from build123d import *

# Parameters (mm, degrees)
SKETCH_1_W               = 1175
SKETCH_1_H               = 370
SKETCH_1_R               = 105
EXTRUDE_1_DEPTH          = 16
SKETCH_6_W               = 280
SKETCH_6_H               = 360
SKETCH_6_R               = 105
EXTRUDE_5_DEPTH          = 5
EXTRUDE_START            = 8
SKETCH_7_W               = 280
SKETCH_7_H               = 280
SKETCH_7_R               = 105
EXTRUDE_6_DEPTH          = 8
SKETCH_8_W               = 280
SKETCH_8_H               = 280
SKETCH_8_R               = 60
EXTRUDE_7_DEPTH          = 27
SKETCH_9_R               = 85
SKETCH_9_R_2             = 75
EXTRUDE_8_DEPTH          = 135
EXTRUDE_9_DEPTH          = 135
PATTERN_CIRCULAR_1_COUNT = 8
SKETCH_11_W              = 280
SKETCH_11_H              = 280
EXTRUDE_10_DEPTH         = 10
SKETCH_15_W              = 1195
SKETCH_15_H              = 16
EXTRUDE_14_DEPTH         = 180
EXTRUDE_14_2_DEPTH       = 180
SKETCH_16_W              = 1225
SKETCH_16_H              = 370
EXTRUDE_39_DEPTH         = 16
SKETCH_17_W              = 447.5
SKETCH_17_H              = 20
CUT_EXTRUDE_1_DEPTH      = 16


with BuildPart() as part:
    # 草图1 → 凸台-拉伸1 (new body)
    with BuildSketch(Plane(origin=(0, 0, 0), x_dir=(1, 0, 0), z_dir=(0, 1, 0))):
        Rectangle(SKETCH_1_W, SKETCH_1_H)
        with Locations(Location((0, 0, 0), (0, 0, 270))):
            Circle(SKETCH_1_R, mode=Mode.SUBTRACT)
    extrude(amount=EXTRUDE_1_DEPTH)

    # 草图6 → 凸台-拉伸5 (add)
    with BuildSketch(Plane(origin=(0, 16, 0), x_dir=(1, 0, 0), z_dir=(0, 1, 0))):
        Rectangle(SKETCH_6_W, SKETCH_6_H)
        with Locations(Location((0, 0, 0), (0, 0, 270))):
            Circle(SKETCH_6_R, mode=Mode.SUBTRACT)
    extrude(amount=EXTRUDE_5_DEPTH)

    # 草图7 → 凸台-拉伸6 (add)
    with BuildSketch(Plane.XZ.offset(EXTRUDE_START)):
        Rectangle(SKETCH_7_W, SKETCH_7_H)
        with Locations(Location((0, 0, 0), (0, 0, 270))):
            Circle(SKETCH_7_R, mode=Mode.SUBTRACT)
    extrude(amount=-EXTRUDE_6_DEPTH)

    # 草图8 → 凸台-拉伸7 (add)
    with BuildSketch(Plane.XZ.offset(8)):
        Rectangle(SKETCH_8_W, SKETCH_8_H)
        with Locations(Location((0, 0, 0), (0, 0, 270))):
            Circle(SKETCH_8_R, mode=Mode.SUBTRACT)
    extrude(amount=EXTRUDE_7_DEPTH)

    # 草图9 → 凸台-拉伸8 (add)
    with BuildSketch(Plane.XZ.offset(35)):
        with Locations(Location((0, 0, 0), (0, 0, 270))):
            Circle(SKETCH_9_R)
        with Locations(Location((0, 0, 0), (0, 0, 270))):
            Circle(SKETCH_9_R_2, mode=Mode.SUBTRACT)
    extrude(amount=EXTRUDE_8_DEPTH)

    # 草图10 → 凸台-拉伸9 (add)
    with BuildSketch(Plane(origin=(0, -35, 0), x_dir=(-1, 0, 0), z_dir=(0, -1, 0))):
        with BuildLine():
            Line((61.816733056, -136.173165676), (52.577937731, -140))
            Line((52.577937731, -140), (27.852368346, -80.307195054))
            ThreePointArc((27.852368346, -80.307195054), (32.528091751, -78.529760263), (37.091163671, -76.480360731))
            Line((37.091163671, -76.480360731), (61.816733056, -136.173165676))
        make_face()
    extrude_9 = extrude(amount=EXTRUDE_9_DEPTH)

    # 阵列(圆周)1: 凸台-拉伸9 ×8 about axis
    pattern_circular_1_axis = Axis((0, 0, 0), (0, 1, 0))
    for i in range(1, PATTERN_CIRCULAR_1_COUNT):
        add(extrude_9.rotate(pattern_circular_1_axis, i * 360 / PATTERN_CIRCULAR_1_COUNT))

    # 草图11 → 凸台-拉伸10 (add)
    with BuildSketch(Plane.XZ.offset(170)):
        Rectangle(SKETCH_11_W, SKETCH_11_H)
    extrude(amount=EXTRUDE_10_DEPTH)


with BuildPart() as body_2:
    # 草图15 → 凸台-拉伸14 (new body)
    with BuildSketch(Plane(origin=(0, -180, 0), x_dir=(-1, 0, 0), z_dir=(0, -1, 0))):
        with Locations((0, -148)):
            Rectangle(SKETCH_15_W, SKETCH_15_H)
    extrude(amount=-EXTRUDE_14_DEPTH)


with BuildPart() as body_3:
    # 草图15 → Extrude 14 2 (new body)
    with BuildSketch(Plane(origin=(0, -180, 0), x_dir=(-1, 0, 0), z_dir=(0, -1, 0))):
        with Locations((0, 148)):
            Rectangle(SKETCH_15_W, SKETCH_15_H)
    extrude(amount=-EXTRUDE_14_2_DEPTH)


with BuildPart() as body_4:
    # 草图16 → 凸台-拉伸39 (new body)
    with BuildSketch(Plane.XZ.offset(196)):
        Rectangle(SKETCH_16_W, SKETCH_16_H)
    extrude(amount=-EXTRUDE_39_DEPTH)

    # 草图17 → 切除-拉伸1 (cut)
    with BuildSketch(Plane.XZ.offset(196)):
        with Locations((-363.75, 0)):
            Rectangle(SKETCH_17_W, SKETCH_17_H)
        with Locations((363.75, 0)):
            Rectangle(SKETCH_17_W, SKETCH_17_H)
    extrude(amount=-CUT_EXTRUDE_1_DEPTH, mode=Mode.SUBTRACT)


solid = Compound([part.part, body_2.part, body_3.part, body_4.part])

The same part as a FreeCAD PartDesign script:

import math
import FreeCAD as App
import Part
import Sketcher
from FreeCAD import Vector
Q = App.Units.Quantity

doc = App.newDocument("Part")
body = doc.addObject("PartDesign::Body", "Body")

# Sketch on XZ plane
sketch1 = body.newObject("Sketcher::SketchObject", "Sketch")
sketch1.AttachmentSupport = (doc.getObject("XZ_Plane"), [""])
sketch1.MapMode = "FlatFace"
sketch1.addGeometry([
    Part.LineSegment(Vector(-588, -185, 0), Vector(-588, 185, 0)),  # 0
    Part.LineSegment(Vector(-588, 185, 0), Vector(588, 185, 0)),  # 1
    Part.LineSegment(Vector(588, 185, 0), Vector(588, -185, 0)),  # 2
    Part.LineSegment(Vector(588, -185, 0), Vector(-588, -185, 0)),  # 3
    Part.Circle(Vector(0, 0, 0), Vector(0, 0, 1), 105),  # 4
], False)
sketch1.addConstraint([
    Sketcher.Constraint("Coincident", 0, 2, 1, 1),
    Sketcher.Constraint("Coincident", 1, 2, 2, 1),
    Sketcher.Constraint("Coincident", 2, 2, 3, 1),
    Sketcher.Constraint("Coincident", 3, 2, 0, 1),
    Sketcher.Constraint("Vertical", 0),
    Sketcher.Constraint("Horizontal", 1),
    Sketcher.Constraint("Vertical", 2),
    Sketcher.Constraint("Horizontal", 3),
    Sketcher.Constraint("Coincident", 4, 3, -1, 1),
    Sketcher.Constraint("Symmetric", 0, 2, 2, 2, -1, 1),
    Sketcher.Constraint("Diameter", 4, 210.0),
    Sketcher.Constraint("DistanceX", 1, 1, 1, 2, 1175.0),
    Sketcher.Constraint("DistanceY", 0, 1, 0, 2, 370.0),
])
pad1 = body.newObject("PartDesign::Pad", "Pad")
pad1.Profile = sketch1
pad1.Length = 16
pad1.Reversed = True

# Sketch on XZ plane
sketch2 = body.newObject("Sketcher::SketchObject", "Sketch001")
sketch2.AttachmentSupport = (doc.getObject("XZ_Plane"), [""])
sketch2.MapMode = "FlatFace"
sketch2.AttachmentOffset = App.Placement(Vector(0, 0, -16), App.Rotation())
sketch2.addGeometry([
    Part.LineSegment(Vector(-140, -180, 0), Vector(-140, 180, 0)),  # 0
    Part.LineSegment(Vector(-140, 180, 0), Vector(140, 180, 0)),  # 1
    Part.LineSegment(Vector(140, 180, 0), Vector(140, -180, 0)),  # 2
    Part.LineSegment(Vector(140, -180, 0), Vector(-140, -180, 0)),  # 3
    Part.Circle(Vector(0, 0, 0), Vector(0, 0, 1), 105),  # 4
], False)
sketch2.addConstraint([
    Sketcher.Constraint("Coincident", 0, 2, 1, 1),
    Sketcher.Constraint("Coincident", 1, 2, 2, 1),
    Sketcher.Constraint("Coincident", 2, 2, 3, 1),
    Sketcher.Constraint("Coincident", 3, 2, 0, 1),
    Sketcher.Constraint("Vertical", 0),
    Sketcher.Constraint("Horizontal", 1),
    Sketcher.Constraint("Vertical", 2),
    Sketcher.Constraint("Horizontal", 3),
    Sketcher.Constraint("Coincident", 4, 3, -1, 1),
    Sketcher.Constraint("Symmetric", 0, 2, 2, 2, -1, 1),
    Sketcher.Constraint("Diameter", 4, 210.0),
    Sketcher.Constraint("DistanceX", 1, 1, 1, 2, 280.0),
    Sketcher.Constraint("DistanceY", 0, 1, 0, 2, 360.0),
])
pad2 = body.newObject("PartDesign::Pad", "Pad001")
pad2.Profile = sketch2
pad2.Length = 5
pad2.Reversed = True

# Sketch on XZ plane
sketch3 = body.newObject("Sketcher::SketchObject", "Sketch002")
sketch3.AttachmentSupport = (doc.getObject("XZ_Plane"), [""])
sketch3.MapMode = "FlatFace"
sketch3.AttachmentOffset = App.Placement(Vector(0, 0, 8), App.Rotation())
sketch3.addGeometry([
    Part.LineSegment(Vector(-140, 140, 0), Vector(-140, -140, 0)),  # 0
    Part.LineSegment(Vector(-140, -140, 0), Vector(140, -140, 0)),  # 1
    Part.LineSegment(Vector(140, -140, 0), Vector(140, 140, 0)),  # 2
    Part.LineSegment(Vector(140, 140, 0), Vector(-140, 140, 0)),  # 3
    Part.Circle(Vector(0, 0, 0), Vector(0, 0, 1), 105),  # 4
], False)
sketch3.addConstraint([
    Sketcher.Constraint("Coincident", 0, 2, 1, 1),
    Sketcher.Constraint("Coincident", 1, 2, 2, 1),
    Sketcher.Constraint("Coincident", 2, 2, 3, 1),
    Sketcher.Constraint("Coincident", 3, 2, 0, 1),
    Sketcher.Constraint("Vertical", 0),
    Sketcher.Constraint("Horizontal", 1),
    Sketcher.Constraint("Vertical", 2),
    Sketcher.Constraint("Horizontal", 3),
    Sketcher.Constraint("Coincident", 4, 3, -1, 1),
    Sketcher.Constraint("Symmetric", 0, 2, 2, 2, -1, 1),
    Sketcher.Constraint("Equal", 3, 0),
    Sketcher.Constraint("Diameter", 4, 210.0),
    Sketcher.Constraint("DistanceX", 1, 1, 1, 2, 280.0),
])
pad3 = body.newObject("PartDesign::Pad", "Pad002")
pad3.Profile = sketch3
pad3.Length = 8
pad3.Reversed = True

# Sketch on XZ plane
sketch4 = body.newObject("Sketcher::SketchObject", "Sketch003")
sketch4.AttachmentSupport = (doc.getObject("XZ_Plane"), [""])
sketch4.MapMode = "FlatFace"
sketch4.AttachmentOffset = App.Placement(Vector(0, 0, 8), App.Rotation())
sketch4.addGeometry([
    Part.LineSegment(Vector(-140, 140, 0), Vector(-140, -140, 0)),  # 0
    Part.LineSegment(Vector(-140, -140, 0), Vector(140, -140, 0)),  # 1
    Part.LineSegment(Vector(140, -140, 0), Vector(140, 140, 0)),  # 2
    Part.LineSegment(Vector(140, 140, 0), Vector(-140, 140, 0)),  # 3
    Part.Circle(Vector(0, 0, 0), Vector(0, 0, 1), 60),  # 4
], False)
sketch4.addConstraint([
    Sketcher.Constraint("Coincident", 0, 2, 1, 1),
    Sketcher.Constraint("Coincident", 1, 2, 2, 1),
    Sketcher.Constraint("Coincident", 2, 2, 3, 1),
    Sketcher.Constraint("Coincident", 3, 2, 0, 1),
    Sketcher.Constraint("Vertical", 0),
    Sketcher.Constraint("Horizontal", 1),
    Sketcher.Constraint("Vertical", 2),
    Sketcher.Constraint("Horizontal", 3),
    Sketcher.Constraint("Coincident", 4, 3, -1, 1),
    Sketcher.Constraint("Symmetric", 0, 2, 2, 2, -1, 1),
    Sketcher.Constraint("Equal", 3, 0),
    Sketcher.Constraint("Diameter", 4, 120.0),
    Sketcher.Constraint("DistanceX", 1, 1, 1, 2, 280.0),
])
pad4 = body.newObject("PartDesign::Pad", "Pad003")
pad4.Profile = sketch4
pad4.Length = 27

# Sketch on XZ plane
sketch5 = body.newObject("Sketcher::SketchObject", "Sketch004")
sketch5.AttachmentSupport = (doc.getObject("XZ_Plane"), [""])
sketch5.MapMode = "FlatFace"
sketch5.AttachmentOffset = App.Placement(Vector(0, 0, 35), App.Rotation())
sketch5.addGeometry([
    Part.Circle(Vector(0, 0, 0), Vector(0, 0, 1), 85),
    Part.Circle(Vector(0, 0, 0), Vector(0, 0, 1), 75),
], False)
sketch5.addConstraint([
    Sketcher.Constraint("Coincident", 0, 3, -1, 1),
    Sketcher.Constraint("Coincident", 1, 3, -1, 1),
    Sketcher.Constraint("Diameter", 0, 170.0),
    Sketcher.Constraint("Diameter", 1, 150.0),
])
pad5 = body.newObject("PartDesign::Pad", "Pad004")
pad5.Profile = sketch5
pad5.Length = 135

# Sketch on XZ plane
sketch6 = body.newObject("Sketcher::SketchObject", "Sketch005")
sketch6.AttachmentSupport = (doc.getObject("XZ_Plane"), [""])
sketch6.MapMode = "FlatFace"
sketch6.AttachmentOffset = App.Placement(Vector(0, 0, 35), App.Rotation())
sketch6.addGeometry([
    Part.LineSegment(Vector(-53, 140, 0), Vector(-62, 136, 0)),
    Part.LineSegment(Vector(-62, 136, 0), Vector(-37, 76, 0)),
    Part.ArcOfCircle(Part.Circle(Vector(0, 0, 0), Vector(0, 0, 1), 85), math.radians(109.13), math.radians(115.87)),
    Part.LineSegment(Vector(-28, 80, 0), Vector(-53, 140, 0)),
], False)
sketch6.addConstraint([
    Sketcher.Constraint("Coincident", 0, 2, 1, 1),
    Sketcher.Constraint("Coincident", 1, 2, 2, 2),
    Sketcher.Constraint("Coincident", 2, 1, 3, 1),
    Sketcher.Constraint("Coincident", 3, 2, 0, 1),
    Sketcher.Constraint("Coincident", 2, 3, -1, 1),
    Sketcher.Constraint("Perpendicular", 0, 1),
    Sketcher.Constraint("Parallel", 1, 3),
    Sketcher.Constraint("Equal", 1, 3),
    Sketcher.Constraint("Radius", 2, 85.0),
    Sketcher.Constraint("Distance", 0, 10.0),
    Sketcher.Constraint("DistanceY", -1, 1, 3, 2, 140.0),
    Sketcher.Constraint("Angle", 0, Q("-157.5 deg")),
])
pad6 = body.newObject("PartDesign::Pad", "Pad005")
pad6.Profile = sketch6
pad6.Length = 135
doc.recompute()

polarpattern = body.newObject("PartDesign::PolarPattern", "PolarPattern")
polarpattern.Originals = [pad6]
polarpattern.Axis = (doc.getObject("Y_Axis"), [""])
polarpattern.Angle = 360
polarpattern.Occurrences = 8
body.Tip = polarpattern

# Sketch on XZ plane
sketch7 = body.newObject("Sketcher::SketchObject", "Sketch006")
sketch7.AttachmentSupport = (doc.getObject("XZ_Plane"), [""])
sketch7.MapMode = "FlatFace"
sketch7.AttachmentOffset = App.Placement(Vector(0, 0, 170), App.Rotation())
sketch7.addGeometry([
    Part.LineSegment(Vector(-140, 140, 0), Vector(-140, -140, 0)),
    Part.LineSegment(Vector(-140, -140, 0), Vector(140, -140, 0)),
    Part.LineSegment(Vector(140, -140, 0), Vector(140, 140, 0)),
    Part.LineSegment(Vector(140, 140, 0), Vector(-140, 140, 0)),
], False)
sketch7.addConstraint([
    Sketcher.Constraint("Coincident", 0, 2, 1, 1),
    Sketcher.Constraint("Coincident", 1, 2, 2, 1),
    Sketcher.Constraint("Coincident", 2, 2, 3, 1),
    Sketcher.Constraint("Coincident", 3, 2, 0, 1),
    Sketcher.Constraint("Vertical", 0),
    Sketcher.Constraint("Horizontal", 1),
    Sketcher.Constraint("Vertical", 2),
    Sketcher.Constraint("Horizontal", 3),
    Sketcher.Constraint("Symmetric", 0, 2, 2, 2, -1, 1),
    Sketcher.Constraint("Equal", 3, 0),
    Sketcher.Constraint("DistanceX", 1, 1, 1, 2, 280.0),
])
pad7 = body.newObject("PartDesign::Pad", "Pad006")
pad7.Profile = sketch7
pad7.Length = 10
body2 = doc.addObject("PartDesign::Body", "Body001")

# Sketch on XZ plane
sketch8 = body2.newObject("Sketcher::SketchObject", "Sketch007")
sketch8.AttachmentSupport = (doc.getObject("XZ_Plane001"), [""])
sketch8.MapMode = "FlatFace"
sketch8.AttachmentOffset = App.Placement(Vector(0, 0, 180), App.Rotation())
sketch8.addGeometry([
    Part.LineSegment(Vector(598, 140, 0), Vector(598, 156, 0)),
    Part.LineSegment(Vector(598, 156, 0), Vector(-598, 156, 0)),
    Part.LineSegment(Vector(-598, 156, 0), Vector(-598, 140, 0)),
    Part.LineSegment(Vector(-598, 140, 0), Vector(598, 140, 0)),
], False)
sketch8.addConstraint([
    Sketcher.Constraint("Coincident", 0, 2, 1, 1),
    Sketcher.Constraint("Coincident", 1, 2, 2, 1),
    Sketcher.Constraint("Coincident", 2, 2, 3, 1),
    Sketcher.Constraint("Coincident", 3, 2, 0, 1),
    Sketcher.Constraint("Vertical", 0),
    Sketcher.Constraint("Horizontal", 1),
    Sketcher.Constraint("Vertical", 2),
    Sketcher.Constraint("Horizontal", 3),
    Sketcher.Constraint("DistanceX", 1, 2, 1, 1, 1195.0),
    Sketcher.Constraint("DistanceY", 0, 1, 0, 2, 16.0),
    Sketcher.Constraint("DistanceY", -1, 1, 0, 2, 156.0),
    Sketcher.Constraint("DistanceX", -1, 1, 0, 2, 597.5),
])
pad8 = body2.newObject("PartDesign::Pad", "Pad007")
pad8.Profile = sketch8
pad8.Length = 180
pad8.Reversed = True
body3 = doc.addObject("PartDesign::Body", "Body002")

# Sketch on XZ plane
sketch9 = body3.newObject("Sketcher::SketchObject", "Sketch008")
sketch9.AttachmentSupport = (doc.getObject("XZ_Plane002"), [""])
sketch9.MapMode = "FlatFace"
sketch9.AttachmentOffset = App.Placement(Vector(0, 0, 180), App.Rotation())
sketch9.addGeometry([
    Part.LineSegment(Vector(598, -156, 0), Vector(598, -140, 0)),
    Part.LineSegment(Vector(598, -140, 0), Vector(-598, -140, 0)),
    Part.LineSegment(Vector(-598, -140, 0), Vector(-598, -156, 0)),
    Part.LineSegment(Vector(-598, -156, 0), Vector(598, -156, 0)),
], False)
sketch9.addConstraint([
    Sketcher.Constraint("Coincident", 0, 2, 1, 1),
    Sketcher.Constraint("Coincident", 1, 2, 2, 1),
    Sketcher.Constraint("Coincident", 2, 2, 3, 1),
    Sketcher.Constraint("Coincident", 3, 2, 0, 1),
    Sketcher.Constraint("Vertical", 0),
    Sketcher.Constraint("Horizontal", 1),
    Sketcher.Constraint("Vertical", 2),
    Sketcher.Constraint("Horizontal", 3),
    Sketcher.Constraint("DistanceX", 1, 2, 1, 1, 1195.0),
    Sketcher.Constraint("DistanceY", 0, 1, 0, 2, 16.0),
    Sketcher.Constraint("DistanceY", 0, 2, -1, 1, 140.0),
    Sketcher.Constraint("DistanceX", -1, 1, 0, 2, 597.5),
])
pad9 = body3.newObject("PartDesign::Pad", "Pad008")
pad9.Profile = sketch9
pad9.Length = 180
pad9.Reversed = True
body4 = doc.addObject("PartDesign::Body", "Body003")

# Sketch on XZ plane
sketch10 = body4.newObject("Sketcher::SketchObject", "Sketch009")
sketch10.AttachmentSupport = (doc.getObject("XZ_Plane003"), [""])
sketch10.MapMode = "FlatFace"
sketch10.AttachmentOffset = App.Placement(Vector(0, 0, 196), App.Rotation())
sketch10.addGeometry([
    Part.LineSegment(Vector(-612, 185, 0), Vector(-612, -185, 0)),
    Part.LineSegment(Vector(-612, -185, 0), Vector(612, -185, 0)),
    Part.LineSegment(Vector(612, -185, 0), Vector(612, 185, 0)),
    Part.LineSegment(Vector(612, 185, 0), Vector(-612, 185, 0)),
], False)
sketch10.addConstraint([
    Sketcher.Constraint("Coincident", 0, 2, 1, 1),
    Sketcher.Constraint("Coincident", 1, 2, 2, 1),
    Sketcher.Constraint("Coincident", 2, 2, 3, 1),
    Sketcher.Constraint("Coincident", 3, 2, 0, 1),
    Sketcher.Constraint("Vertical", 0),
    Sketcher.Constraint("Horizontal", 1),
    Sketcher.Constraint("Vertical", 2),
    Sketcher.Constraint("Horizontal", 3),
    Sketcher.Constraint("Symmetric", 0, 2, 2, 2, -1, 1),
    Sketcher.Constraint("DistanceX", 1, 1, 1, 2, 1225.0),
    Sketcher.Constraint("DistanceY", 0, 2, 0, 1, 370.0),
])
pad10 = body4.newObject("PartDesign::Pad", "Pad009")
pad10.Profile = sketch10
pad10.Length = 16
pad10.Reversed = True

# Sketch on XZ plane
sketch11 = body4.newObject("Sketcher::SketchObject", "Sketch010")
sketch11.AttachmentSupport = (doc.getObject("XZ_Plane003"), [""])
sketch11.MapMode = "FlatFace"
sketch11.AttachmentOffset = App.Placement(Vector(0, 0, 196), App.Rotation())
sketch11.addGeometry([
    Part.LineSegment(Vector(-588, 10, 0), Vector(-588, -10, 0)),  # 0
    Part.LineSegment(Vector(-588, -10, 0), Vector(-140, -10, 0)),  # 1
    Part.LineSegment(Vector(-140, -10, 0), Vector(-140, 10, 0)),  # 2
    Part.LineSegment(Vector(-140, 10, 0), Vector(-588, 10, 0)),  # 3
    Part.LineSegment(Vector(140, 10, 0), Vector(140, -10, 0)),  # 4
    Part.LineSegment(Vector(140, -10, 0), Vector(588, -10, 0)),  # 5
    Part.LineSegment(Vector(588, -10, 0), Vector(588, 10, 0)),  # 6
    Part.LineSegment(Vector(588, 10, 0), Vector(140, 10, 0)),  # 7
], False)
sketch11.addConstraint([
    Sketcher.Constraint("Coincident", 0, 2, 1, 1),
    Sketcher.Constraint("Coincident", 1, 2, 2, 1),
    Sketcher.Constraint("Coincident", 2, 2, 3, 1),
    Sketcher.Constraint("Coincident", 3, 2, 0, 1),
    Sketcher.Constraint("Coincident", 4, 2, 5, 1),
    Sketcher.Constraint("Coincident", 5, 2, 6, 1),
    Sketcher.Constraint("Coincident", 6, 2, 7, 1),
    Sketcher.Constraint("Coincident", 7, 2, 4, 1),
    Sketcher.Constraint("Vertical", 0),
    Sketcher.Constraint("Horizontal", 1),
    Sketcher.Constraint("Vertical", 2),
    Sketcher.Constraint("Horizontal", 3),
    Sketcher.Constraint("Vertical", 4),
    Sketcher.Constraint("Horizontal", 5),
    Sketcher.Constraint("Vertical", 6),
    Sketcher.Constraint("Horizontal", 7),
    Sketcher.Constraint("Symmetric", 2, 2, 4, 2, -1, 1),
    Sketcher.Constraint("Symmetric", 0, 2, 6, 2, -1, 1),
    Sketcher.Constraint("Horizontal", 1, 2, 4, 2),
    Sketcher.Constraint("DistanceY", 0, 2, 0, 1, 20.0),
    Sketcher.Constraint("DistanceX", 1, 1, 1, 2, 447.5),
    Sketcher.Constraint("DistanceX", 1, 2, -1, 1, 140.0),
])
pocket1 = body4.newObject("PartDesign::Pocket", "Pocket")
pocket1.Profile = sketch11
pocket1.Length = 16

doc.recompute()
